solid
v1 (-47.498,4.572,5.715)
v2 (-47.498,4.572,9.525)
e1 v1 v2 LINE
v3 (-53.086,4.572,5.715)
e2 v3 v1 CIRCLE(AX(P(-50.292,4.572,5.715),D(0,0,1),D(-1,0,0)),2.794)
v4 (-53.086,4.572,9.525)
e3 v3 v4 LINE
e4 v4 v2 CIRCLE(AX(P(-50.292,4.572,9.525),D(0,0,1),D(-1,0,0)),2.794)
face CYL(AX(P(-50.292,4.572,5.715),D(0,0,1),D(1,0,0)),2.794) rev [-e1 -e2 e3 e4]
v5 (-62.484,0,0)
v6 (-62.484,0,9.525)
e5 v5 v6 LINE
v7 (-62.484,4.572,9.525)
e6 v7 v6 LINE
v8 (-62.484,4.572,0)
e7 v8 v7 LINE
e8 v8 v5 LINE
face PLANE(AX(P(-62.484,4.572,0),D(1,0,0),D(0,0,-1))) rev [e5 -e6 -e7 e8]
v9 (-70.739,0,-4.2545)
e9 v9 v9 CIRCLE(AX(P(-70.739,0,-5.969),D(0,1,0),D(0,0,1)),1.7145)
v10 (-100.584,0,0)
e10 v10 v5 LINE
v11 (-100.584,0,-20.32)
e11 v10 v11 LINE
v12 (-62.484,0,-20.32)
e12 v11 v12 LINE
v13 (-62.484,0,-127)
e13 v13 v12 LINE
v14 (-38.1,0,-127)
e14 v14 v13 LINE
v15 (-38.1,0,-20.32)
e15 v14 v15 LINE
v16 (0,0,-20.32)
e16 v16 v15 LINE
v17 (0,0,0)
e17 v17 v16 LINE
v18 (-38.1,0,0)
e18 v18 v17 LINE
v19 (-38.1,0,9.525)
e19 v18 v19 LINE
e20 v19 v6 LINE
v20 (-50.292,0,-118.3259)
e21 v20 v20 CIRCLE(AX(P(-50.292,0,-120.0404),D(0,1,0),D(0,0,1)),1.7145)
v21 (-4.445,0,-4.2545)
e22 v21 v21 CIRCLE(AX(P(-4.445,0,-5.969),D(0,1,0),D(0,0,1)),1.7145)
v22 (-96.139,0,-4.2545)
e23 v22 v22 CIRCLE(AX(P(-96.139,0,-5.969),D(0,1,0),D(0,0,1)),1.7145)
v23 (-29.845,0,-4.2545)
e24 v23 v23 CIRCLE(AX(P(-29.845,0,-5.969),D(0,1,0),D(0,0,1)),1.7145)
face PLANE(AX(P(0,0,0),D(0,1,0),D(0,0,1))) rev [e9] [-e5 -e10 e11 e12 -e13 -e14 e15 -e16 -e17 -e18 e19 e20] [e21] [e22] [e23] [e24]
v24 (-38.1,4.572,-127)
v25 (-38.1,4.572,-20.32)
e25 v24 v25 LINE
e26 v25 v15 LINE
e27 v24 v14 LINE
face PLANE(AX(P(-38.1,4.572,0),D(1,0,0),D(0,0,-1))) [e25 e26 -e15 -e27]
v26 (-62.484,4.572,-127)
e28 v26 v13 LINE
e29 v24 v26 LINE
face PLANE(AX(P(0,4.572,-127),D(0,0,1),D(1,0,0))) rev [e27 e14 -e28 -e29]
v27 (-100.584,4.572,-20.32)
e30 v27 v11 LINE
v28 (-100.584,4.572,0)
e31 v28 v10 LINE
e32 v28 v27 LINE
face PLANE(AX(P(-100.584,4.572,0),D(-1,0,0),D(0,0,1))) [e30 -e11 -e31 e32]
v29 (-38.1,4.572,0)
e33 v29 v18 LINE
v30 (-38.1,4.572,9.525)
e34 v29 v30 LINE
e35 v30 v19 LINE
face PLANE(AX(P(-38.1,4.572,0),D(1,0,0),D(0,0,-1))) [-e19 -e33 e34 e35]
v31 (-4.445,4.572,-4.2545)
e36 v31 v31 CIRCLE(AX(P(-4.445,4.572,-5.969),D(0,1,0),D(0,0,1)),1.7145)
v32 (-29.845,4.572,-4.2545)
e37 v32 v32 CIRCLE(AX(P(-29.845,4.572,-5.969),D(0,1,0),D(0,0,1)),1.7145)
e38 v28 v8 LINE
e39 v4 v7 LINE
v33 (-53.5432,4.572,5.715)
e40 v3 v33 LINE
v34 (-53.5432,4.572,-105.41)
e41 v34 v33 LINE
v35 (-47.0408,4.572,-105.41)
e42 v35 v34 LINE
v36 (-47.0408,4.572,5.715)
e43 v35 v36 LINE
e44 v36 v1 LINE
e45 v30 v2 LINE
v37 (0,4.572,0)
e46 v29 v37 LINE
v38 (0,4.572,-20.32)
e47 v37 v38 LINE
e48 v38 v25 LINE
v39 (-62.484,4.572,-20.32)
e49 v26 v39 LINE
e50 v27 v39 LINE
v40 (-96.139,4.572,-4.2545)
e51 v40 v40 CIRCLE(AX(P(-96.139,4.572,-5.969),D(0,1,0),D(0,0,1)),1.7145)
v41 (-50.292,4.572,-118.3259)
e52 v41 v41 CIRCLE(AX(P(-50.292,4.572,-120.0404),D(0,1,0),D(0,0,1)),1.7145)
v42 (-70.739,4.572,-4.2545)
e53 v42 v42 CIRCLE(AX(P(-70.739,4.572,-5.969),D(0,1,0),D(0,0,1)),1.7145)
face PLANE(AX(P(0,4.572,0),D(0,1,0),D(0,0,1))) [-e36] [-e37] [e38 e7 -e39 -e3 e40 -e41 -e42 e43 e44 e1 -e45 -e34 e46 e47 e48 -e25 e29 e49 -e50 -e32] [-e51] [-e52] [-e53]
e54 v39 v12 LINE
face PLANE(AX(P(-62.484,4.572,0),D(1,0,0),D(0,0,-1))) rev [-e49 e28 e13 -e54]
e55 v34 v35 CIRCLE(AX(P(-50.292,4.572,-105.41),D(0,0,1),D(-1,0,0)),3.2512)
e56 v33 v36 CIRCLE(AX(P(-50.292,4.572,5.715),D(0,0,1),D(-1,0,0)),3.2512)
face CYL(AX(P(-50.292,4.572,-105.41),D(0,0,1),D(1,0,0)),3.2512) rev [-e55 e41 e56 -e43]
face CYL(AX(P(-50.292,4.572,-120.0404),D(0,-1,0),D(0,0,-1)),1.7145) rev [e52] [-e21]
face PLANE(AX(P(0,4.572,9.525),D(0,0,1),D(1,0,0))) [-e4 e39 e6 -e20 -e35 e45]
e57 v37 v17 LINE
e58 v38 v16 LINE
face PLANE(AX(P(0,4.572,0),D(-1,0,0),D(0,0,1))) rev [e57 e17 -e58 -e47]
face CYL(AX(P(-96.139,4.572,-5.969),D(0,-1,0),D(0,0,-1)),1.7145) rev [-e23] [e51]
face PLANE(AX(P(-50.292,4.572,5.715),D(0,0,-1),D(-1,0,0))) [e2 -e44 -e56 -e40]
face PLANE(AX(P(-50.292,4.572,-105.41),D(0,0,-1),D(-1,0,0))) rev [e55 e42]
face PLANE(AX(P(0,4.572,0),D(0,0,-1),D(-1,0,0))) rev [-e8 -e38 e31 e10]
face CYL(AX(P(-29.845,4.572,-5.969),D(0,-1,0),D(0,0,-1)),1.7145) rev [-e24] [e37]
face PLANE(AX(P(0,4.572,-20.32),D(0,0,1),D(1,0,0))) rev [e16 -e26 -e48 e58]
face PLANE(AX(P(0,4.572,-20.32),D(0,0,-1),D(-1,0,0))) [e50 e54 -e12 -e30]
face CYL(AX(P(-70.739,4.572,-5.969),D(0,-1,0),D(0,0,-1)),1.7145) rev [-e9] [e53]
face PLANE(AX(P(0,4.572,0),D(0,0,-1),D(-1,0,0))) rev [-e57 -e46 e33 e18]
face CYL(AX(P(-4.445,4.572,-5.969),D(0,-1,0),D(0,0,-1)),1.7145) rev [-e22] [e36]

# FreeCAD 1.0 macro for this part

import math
import FreeCAD as App
import Part
import Sketcher

V = App.Vector
Q = App.Units.Quantity


def add_polygon(sketch, points):
    """Adds a closed chain of lines whose ends are joined by coincident constraints."""
    first, n = sketch.GeometryCount, len(points)
    for a, b in zip(points, points[1:] + points[:1]):
        sketch.addGeometry(Part.LineSegment(App.Vector(*a, 0), App.Vector(*b, 0)), False)
    for i in range(n):
        sketch.addConstraint(Sketcher.Constraint("Coincident", first + i, 2, first + (i + 1) % n, 1))

doc = App.newDocument("Part")
body = doc.addObject("PartDesign::Body", "Body")

# Sketch on XZ plane
sketch1 = doc.addObject("Sketcher::SketchObject", "Sketch")
body.addObject(sketch1)
sketch1.AttachmentSupport = (doc.XZ_Plane, [""])
sketch1.MapMode = "FlatFace"
add_polygon(sketch1, [(0, 0), (0, -20.3), (-38.1, -20.3), (-38.1, -127), (-62.5, -127), (-62.5, -20.3), (-100.6, -20.3), (-100.6, 0), (-62.5, 0), (-62.5, 9.5), (-38.1, 9.5), (-38.1, 0)])  # lines 0-11
sketch1.addGeometry(Part.Circle(V(-96.1, -6, 0), V(0, 0, 1), 1.7), False)  # 12
sketch1.addGeometry(Part.Circle(V(-70.7, -6, 0), V(0, 0, 1), 1.7), False)  # 13
sketch1.addGeometry(Part.Circle(V(-29.8, -6, 0), V(0, 0, 1), 1.7), False)  # 14
sketch1.addGeometry(Part.Circle(V(-4.4, -6, 0), V(0, 0, 1), 1.7), False)  # 15
sketch1.addGeometry(Part.Circle(V(-50.3, -120, 0), V(0, 0, 1), 1.7), False)  # 16
sketch1.addConstraint([
    Sketcher.Constraint("Vertical", 0),
    Sketcher.Constraint("Horizontal", 1),
    Sketcher.Constraint("Vertical", 2),
    Sketcher.Constraint("Horizontal", 3),
    Sketcher.Constraint("Vertical", 4),
    Sketcher.Constraint("Horizontal", 5),
    Sketcher.Constraint("Vertical", 6),
    Sketcher.Constraint("Horizontal", 7),
    Sketcher.Constraint("Vertical", 8),
    Sketcher.Constraint("Horizontal", 9),
    Sketcher.Constraint("Vertical", 10),
    Sketcher.Constraint("Horizontal", 11),
    Sketcher.Constraint("Coincident", 11, 2, -1, 1),
    Sketcher.Constraint("Equal", 12, 13),
    Sketcher.Constraint("Equal", 13, 14),
    Sketcher.Constraint("Equal", 14, 15),
    Sketcher.Constraint("Equal", 15, 16),
    Sketcher.Constraint("PointOnObject", 6, 2, -1),
    Sketcher.Constraint("Horizontal", 12, 3, 13, 3),
    Sketcher.Constraint("Horizontal", 13, 3, 14, 3),
    Sketcher.Constraint("Horizontal", 14, 3, 15, 3),
    Sketcher.Constraint("Horizontal", 1, 2, 4, 2),
    Sketcher.Constraint("Vertical", 4, 2, 7, 2),
    Sketcher.Constraint("Vertical", 2, 2, 9, 2),
    Sketcher.Constraint("Equal", 1, 5),
    Sketcher.Constraint("Diameter", 12, Q("0.135 in")),
    Sketcher.Constraint("DistanceX", 1, 2, 1, 1, Q("1.5 in")),
    Sketcher.Constraint("DistanceY", 0, 2, 0, 1, Q("0.8 in")),
    Sketcher.Constraint("DistanceY", 2, 2, 2, 1, Q("4.2 in")),
    Sketcher.Constraint("DistanceX", 12, 3, 13, 3, Q("1 in")),
    Sketcher.Constraint("DistanceX", 14, 3, 15, 3, Q("1 in")),
    Sketcher.Constraint("DistanceX", 3, 2, 3, 1, Q("0.96 in")),
    Sketcher.Constraint("DistanceY", 8, 1, 8, 2, Q("0.375 in")),
    Sketcher.Constraint("DistanceX", 16, 3, -1, 1, Q("1.98 in")),
    Sketcher.Constraint("DistanceX", 13, 3, 14, 3, Q("1.61 in")),
    Sketcher.Constraint("DistanceY", 13, 3, 8, 2, Q("0.61 in")),
    Sketcher.Constraint("DistanceX", 12, 3, -1, 1, Q("3.785 in")),
    Sketcher.Constraint("DistanceY", 16, 3, -1, 1, Q("4.726 in")),
])
pad1 = doc.addObject("PartDesign::Pad", "Pad")
body.addObject(pad1)
pad1.Profile = sketch1
pad1.Length = Q("0.18 in")
pad1.Reversed = True

# Sketch on XY plane
sketch2 = doc.addObject("Sketcher::SketchObject", "Sketch001")
body.addObject(sketch2)
sketch2.AttachmentSupport = (doc.XY_Plane, [""])
sketch2.MapMode = "FlatFace"
sketch2.AttachmentOffset = App.Placement(V(0, 0, 0.375 * 25.4), App.Rotation())
sketch2.addGeometry([
    Part.LineSegment(V(-47.5, 4.6, 0), V(-53.1, 4.6, 0)),
    Part.ArcOfCircle(Part.Circle(V(-50.3, 4.6, 0), V(0, 0, 1), 2.8), math.radians(180), math.radians(360)),
], False)
sketch2.addConstraint([
    Sketcher.Constraint("Coincident", 0, 1, 1, 2),
    Sketcher.Constraint("Coincident", 1, 1, 0, 2),
    Sketcher.Constraint("Horizontal", 0),
    Sketcher.Constraint("Horizontal", 1, 3, 0, 1),
    Sketcher.Constraint("Radius", 1, Q("0.11 in")),
    Sketcher.Constraint("DistanceX", 1, 3, -1, 1, Q("1.98 in")),
    Sketcher.Constraint("DistanceY", -1, 1, 1, 3, Q("0.18 in")),
])
pocket1 = doc.addObject("PartDesign::Pocket", "Pocket")
body.addObject(pocket1)
pocket1.Profile = sketch2
pocket1.Length = Q("0.15 in")

# Sketch on XY plane
sketch3 = doc.addObject("Sketcher::SketchObject", "Sketch002")
body.addObject(sketch3)
sketch3.AttachmentSupport = (doc.XY_Plane, [""])
sketch3.MapMode = "FlatFace"
sketch3.AttachmentOffset = App.Placement(V(0, 0, 0.225 * 25.4), App.Rotation())
sketch3.addGeometry([
    Part.LineSegment(V(-47, 4.6, 0), V(-53.5, 4.6, 0)),
    Part.ArcOfCircle(Part.Circle(V(-50.3, 4.6, 0), V(0, 0, 1), 3.3), math.radians(180), math.radians(360)),
], False)
sketch3.addConstraint([
    Sketcher.Constraint("Coincident", 0, 1, 1, 2),
    Sketcher.Constraint("Coincident", 1, 1, 0, 2),
    Sketcher.Constraint("Horizontal", 0),
    Sketcher.Constraint("Horizontal", 1, 3, 0, 1),
    Sketcher.Constraint("Radius", 1, Q("0.128 in")),
    Sketcher.Constraint("DistanceX", 1, 3, -1, 1, Q("1.98 in")),
    Sketcher.Constraint("DistanceY", -1, 1, 1, 3, Q("0.18 in")),
])
pocket2 = doc.addObject("PartDesign::Pocket", "Pocket001")
body.addObject(pocket2)
pocket2.Profile = sketch3
pocket2.Length = Q("4.375 in")

doc.recompute()
